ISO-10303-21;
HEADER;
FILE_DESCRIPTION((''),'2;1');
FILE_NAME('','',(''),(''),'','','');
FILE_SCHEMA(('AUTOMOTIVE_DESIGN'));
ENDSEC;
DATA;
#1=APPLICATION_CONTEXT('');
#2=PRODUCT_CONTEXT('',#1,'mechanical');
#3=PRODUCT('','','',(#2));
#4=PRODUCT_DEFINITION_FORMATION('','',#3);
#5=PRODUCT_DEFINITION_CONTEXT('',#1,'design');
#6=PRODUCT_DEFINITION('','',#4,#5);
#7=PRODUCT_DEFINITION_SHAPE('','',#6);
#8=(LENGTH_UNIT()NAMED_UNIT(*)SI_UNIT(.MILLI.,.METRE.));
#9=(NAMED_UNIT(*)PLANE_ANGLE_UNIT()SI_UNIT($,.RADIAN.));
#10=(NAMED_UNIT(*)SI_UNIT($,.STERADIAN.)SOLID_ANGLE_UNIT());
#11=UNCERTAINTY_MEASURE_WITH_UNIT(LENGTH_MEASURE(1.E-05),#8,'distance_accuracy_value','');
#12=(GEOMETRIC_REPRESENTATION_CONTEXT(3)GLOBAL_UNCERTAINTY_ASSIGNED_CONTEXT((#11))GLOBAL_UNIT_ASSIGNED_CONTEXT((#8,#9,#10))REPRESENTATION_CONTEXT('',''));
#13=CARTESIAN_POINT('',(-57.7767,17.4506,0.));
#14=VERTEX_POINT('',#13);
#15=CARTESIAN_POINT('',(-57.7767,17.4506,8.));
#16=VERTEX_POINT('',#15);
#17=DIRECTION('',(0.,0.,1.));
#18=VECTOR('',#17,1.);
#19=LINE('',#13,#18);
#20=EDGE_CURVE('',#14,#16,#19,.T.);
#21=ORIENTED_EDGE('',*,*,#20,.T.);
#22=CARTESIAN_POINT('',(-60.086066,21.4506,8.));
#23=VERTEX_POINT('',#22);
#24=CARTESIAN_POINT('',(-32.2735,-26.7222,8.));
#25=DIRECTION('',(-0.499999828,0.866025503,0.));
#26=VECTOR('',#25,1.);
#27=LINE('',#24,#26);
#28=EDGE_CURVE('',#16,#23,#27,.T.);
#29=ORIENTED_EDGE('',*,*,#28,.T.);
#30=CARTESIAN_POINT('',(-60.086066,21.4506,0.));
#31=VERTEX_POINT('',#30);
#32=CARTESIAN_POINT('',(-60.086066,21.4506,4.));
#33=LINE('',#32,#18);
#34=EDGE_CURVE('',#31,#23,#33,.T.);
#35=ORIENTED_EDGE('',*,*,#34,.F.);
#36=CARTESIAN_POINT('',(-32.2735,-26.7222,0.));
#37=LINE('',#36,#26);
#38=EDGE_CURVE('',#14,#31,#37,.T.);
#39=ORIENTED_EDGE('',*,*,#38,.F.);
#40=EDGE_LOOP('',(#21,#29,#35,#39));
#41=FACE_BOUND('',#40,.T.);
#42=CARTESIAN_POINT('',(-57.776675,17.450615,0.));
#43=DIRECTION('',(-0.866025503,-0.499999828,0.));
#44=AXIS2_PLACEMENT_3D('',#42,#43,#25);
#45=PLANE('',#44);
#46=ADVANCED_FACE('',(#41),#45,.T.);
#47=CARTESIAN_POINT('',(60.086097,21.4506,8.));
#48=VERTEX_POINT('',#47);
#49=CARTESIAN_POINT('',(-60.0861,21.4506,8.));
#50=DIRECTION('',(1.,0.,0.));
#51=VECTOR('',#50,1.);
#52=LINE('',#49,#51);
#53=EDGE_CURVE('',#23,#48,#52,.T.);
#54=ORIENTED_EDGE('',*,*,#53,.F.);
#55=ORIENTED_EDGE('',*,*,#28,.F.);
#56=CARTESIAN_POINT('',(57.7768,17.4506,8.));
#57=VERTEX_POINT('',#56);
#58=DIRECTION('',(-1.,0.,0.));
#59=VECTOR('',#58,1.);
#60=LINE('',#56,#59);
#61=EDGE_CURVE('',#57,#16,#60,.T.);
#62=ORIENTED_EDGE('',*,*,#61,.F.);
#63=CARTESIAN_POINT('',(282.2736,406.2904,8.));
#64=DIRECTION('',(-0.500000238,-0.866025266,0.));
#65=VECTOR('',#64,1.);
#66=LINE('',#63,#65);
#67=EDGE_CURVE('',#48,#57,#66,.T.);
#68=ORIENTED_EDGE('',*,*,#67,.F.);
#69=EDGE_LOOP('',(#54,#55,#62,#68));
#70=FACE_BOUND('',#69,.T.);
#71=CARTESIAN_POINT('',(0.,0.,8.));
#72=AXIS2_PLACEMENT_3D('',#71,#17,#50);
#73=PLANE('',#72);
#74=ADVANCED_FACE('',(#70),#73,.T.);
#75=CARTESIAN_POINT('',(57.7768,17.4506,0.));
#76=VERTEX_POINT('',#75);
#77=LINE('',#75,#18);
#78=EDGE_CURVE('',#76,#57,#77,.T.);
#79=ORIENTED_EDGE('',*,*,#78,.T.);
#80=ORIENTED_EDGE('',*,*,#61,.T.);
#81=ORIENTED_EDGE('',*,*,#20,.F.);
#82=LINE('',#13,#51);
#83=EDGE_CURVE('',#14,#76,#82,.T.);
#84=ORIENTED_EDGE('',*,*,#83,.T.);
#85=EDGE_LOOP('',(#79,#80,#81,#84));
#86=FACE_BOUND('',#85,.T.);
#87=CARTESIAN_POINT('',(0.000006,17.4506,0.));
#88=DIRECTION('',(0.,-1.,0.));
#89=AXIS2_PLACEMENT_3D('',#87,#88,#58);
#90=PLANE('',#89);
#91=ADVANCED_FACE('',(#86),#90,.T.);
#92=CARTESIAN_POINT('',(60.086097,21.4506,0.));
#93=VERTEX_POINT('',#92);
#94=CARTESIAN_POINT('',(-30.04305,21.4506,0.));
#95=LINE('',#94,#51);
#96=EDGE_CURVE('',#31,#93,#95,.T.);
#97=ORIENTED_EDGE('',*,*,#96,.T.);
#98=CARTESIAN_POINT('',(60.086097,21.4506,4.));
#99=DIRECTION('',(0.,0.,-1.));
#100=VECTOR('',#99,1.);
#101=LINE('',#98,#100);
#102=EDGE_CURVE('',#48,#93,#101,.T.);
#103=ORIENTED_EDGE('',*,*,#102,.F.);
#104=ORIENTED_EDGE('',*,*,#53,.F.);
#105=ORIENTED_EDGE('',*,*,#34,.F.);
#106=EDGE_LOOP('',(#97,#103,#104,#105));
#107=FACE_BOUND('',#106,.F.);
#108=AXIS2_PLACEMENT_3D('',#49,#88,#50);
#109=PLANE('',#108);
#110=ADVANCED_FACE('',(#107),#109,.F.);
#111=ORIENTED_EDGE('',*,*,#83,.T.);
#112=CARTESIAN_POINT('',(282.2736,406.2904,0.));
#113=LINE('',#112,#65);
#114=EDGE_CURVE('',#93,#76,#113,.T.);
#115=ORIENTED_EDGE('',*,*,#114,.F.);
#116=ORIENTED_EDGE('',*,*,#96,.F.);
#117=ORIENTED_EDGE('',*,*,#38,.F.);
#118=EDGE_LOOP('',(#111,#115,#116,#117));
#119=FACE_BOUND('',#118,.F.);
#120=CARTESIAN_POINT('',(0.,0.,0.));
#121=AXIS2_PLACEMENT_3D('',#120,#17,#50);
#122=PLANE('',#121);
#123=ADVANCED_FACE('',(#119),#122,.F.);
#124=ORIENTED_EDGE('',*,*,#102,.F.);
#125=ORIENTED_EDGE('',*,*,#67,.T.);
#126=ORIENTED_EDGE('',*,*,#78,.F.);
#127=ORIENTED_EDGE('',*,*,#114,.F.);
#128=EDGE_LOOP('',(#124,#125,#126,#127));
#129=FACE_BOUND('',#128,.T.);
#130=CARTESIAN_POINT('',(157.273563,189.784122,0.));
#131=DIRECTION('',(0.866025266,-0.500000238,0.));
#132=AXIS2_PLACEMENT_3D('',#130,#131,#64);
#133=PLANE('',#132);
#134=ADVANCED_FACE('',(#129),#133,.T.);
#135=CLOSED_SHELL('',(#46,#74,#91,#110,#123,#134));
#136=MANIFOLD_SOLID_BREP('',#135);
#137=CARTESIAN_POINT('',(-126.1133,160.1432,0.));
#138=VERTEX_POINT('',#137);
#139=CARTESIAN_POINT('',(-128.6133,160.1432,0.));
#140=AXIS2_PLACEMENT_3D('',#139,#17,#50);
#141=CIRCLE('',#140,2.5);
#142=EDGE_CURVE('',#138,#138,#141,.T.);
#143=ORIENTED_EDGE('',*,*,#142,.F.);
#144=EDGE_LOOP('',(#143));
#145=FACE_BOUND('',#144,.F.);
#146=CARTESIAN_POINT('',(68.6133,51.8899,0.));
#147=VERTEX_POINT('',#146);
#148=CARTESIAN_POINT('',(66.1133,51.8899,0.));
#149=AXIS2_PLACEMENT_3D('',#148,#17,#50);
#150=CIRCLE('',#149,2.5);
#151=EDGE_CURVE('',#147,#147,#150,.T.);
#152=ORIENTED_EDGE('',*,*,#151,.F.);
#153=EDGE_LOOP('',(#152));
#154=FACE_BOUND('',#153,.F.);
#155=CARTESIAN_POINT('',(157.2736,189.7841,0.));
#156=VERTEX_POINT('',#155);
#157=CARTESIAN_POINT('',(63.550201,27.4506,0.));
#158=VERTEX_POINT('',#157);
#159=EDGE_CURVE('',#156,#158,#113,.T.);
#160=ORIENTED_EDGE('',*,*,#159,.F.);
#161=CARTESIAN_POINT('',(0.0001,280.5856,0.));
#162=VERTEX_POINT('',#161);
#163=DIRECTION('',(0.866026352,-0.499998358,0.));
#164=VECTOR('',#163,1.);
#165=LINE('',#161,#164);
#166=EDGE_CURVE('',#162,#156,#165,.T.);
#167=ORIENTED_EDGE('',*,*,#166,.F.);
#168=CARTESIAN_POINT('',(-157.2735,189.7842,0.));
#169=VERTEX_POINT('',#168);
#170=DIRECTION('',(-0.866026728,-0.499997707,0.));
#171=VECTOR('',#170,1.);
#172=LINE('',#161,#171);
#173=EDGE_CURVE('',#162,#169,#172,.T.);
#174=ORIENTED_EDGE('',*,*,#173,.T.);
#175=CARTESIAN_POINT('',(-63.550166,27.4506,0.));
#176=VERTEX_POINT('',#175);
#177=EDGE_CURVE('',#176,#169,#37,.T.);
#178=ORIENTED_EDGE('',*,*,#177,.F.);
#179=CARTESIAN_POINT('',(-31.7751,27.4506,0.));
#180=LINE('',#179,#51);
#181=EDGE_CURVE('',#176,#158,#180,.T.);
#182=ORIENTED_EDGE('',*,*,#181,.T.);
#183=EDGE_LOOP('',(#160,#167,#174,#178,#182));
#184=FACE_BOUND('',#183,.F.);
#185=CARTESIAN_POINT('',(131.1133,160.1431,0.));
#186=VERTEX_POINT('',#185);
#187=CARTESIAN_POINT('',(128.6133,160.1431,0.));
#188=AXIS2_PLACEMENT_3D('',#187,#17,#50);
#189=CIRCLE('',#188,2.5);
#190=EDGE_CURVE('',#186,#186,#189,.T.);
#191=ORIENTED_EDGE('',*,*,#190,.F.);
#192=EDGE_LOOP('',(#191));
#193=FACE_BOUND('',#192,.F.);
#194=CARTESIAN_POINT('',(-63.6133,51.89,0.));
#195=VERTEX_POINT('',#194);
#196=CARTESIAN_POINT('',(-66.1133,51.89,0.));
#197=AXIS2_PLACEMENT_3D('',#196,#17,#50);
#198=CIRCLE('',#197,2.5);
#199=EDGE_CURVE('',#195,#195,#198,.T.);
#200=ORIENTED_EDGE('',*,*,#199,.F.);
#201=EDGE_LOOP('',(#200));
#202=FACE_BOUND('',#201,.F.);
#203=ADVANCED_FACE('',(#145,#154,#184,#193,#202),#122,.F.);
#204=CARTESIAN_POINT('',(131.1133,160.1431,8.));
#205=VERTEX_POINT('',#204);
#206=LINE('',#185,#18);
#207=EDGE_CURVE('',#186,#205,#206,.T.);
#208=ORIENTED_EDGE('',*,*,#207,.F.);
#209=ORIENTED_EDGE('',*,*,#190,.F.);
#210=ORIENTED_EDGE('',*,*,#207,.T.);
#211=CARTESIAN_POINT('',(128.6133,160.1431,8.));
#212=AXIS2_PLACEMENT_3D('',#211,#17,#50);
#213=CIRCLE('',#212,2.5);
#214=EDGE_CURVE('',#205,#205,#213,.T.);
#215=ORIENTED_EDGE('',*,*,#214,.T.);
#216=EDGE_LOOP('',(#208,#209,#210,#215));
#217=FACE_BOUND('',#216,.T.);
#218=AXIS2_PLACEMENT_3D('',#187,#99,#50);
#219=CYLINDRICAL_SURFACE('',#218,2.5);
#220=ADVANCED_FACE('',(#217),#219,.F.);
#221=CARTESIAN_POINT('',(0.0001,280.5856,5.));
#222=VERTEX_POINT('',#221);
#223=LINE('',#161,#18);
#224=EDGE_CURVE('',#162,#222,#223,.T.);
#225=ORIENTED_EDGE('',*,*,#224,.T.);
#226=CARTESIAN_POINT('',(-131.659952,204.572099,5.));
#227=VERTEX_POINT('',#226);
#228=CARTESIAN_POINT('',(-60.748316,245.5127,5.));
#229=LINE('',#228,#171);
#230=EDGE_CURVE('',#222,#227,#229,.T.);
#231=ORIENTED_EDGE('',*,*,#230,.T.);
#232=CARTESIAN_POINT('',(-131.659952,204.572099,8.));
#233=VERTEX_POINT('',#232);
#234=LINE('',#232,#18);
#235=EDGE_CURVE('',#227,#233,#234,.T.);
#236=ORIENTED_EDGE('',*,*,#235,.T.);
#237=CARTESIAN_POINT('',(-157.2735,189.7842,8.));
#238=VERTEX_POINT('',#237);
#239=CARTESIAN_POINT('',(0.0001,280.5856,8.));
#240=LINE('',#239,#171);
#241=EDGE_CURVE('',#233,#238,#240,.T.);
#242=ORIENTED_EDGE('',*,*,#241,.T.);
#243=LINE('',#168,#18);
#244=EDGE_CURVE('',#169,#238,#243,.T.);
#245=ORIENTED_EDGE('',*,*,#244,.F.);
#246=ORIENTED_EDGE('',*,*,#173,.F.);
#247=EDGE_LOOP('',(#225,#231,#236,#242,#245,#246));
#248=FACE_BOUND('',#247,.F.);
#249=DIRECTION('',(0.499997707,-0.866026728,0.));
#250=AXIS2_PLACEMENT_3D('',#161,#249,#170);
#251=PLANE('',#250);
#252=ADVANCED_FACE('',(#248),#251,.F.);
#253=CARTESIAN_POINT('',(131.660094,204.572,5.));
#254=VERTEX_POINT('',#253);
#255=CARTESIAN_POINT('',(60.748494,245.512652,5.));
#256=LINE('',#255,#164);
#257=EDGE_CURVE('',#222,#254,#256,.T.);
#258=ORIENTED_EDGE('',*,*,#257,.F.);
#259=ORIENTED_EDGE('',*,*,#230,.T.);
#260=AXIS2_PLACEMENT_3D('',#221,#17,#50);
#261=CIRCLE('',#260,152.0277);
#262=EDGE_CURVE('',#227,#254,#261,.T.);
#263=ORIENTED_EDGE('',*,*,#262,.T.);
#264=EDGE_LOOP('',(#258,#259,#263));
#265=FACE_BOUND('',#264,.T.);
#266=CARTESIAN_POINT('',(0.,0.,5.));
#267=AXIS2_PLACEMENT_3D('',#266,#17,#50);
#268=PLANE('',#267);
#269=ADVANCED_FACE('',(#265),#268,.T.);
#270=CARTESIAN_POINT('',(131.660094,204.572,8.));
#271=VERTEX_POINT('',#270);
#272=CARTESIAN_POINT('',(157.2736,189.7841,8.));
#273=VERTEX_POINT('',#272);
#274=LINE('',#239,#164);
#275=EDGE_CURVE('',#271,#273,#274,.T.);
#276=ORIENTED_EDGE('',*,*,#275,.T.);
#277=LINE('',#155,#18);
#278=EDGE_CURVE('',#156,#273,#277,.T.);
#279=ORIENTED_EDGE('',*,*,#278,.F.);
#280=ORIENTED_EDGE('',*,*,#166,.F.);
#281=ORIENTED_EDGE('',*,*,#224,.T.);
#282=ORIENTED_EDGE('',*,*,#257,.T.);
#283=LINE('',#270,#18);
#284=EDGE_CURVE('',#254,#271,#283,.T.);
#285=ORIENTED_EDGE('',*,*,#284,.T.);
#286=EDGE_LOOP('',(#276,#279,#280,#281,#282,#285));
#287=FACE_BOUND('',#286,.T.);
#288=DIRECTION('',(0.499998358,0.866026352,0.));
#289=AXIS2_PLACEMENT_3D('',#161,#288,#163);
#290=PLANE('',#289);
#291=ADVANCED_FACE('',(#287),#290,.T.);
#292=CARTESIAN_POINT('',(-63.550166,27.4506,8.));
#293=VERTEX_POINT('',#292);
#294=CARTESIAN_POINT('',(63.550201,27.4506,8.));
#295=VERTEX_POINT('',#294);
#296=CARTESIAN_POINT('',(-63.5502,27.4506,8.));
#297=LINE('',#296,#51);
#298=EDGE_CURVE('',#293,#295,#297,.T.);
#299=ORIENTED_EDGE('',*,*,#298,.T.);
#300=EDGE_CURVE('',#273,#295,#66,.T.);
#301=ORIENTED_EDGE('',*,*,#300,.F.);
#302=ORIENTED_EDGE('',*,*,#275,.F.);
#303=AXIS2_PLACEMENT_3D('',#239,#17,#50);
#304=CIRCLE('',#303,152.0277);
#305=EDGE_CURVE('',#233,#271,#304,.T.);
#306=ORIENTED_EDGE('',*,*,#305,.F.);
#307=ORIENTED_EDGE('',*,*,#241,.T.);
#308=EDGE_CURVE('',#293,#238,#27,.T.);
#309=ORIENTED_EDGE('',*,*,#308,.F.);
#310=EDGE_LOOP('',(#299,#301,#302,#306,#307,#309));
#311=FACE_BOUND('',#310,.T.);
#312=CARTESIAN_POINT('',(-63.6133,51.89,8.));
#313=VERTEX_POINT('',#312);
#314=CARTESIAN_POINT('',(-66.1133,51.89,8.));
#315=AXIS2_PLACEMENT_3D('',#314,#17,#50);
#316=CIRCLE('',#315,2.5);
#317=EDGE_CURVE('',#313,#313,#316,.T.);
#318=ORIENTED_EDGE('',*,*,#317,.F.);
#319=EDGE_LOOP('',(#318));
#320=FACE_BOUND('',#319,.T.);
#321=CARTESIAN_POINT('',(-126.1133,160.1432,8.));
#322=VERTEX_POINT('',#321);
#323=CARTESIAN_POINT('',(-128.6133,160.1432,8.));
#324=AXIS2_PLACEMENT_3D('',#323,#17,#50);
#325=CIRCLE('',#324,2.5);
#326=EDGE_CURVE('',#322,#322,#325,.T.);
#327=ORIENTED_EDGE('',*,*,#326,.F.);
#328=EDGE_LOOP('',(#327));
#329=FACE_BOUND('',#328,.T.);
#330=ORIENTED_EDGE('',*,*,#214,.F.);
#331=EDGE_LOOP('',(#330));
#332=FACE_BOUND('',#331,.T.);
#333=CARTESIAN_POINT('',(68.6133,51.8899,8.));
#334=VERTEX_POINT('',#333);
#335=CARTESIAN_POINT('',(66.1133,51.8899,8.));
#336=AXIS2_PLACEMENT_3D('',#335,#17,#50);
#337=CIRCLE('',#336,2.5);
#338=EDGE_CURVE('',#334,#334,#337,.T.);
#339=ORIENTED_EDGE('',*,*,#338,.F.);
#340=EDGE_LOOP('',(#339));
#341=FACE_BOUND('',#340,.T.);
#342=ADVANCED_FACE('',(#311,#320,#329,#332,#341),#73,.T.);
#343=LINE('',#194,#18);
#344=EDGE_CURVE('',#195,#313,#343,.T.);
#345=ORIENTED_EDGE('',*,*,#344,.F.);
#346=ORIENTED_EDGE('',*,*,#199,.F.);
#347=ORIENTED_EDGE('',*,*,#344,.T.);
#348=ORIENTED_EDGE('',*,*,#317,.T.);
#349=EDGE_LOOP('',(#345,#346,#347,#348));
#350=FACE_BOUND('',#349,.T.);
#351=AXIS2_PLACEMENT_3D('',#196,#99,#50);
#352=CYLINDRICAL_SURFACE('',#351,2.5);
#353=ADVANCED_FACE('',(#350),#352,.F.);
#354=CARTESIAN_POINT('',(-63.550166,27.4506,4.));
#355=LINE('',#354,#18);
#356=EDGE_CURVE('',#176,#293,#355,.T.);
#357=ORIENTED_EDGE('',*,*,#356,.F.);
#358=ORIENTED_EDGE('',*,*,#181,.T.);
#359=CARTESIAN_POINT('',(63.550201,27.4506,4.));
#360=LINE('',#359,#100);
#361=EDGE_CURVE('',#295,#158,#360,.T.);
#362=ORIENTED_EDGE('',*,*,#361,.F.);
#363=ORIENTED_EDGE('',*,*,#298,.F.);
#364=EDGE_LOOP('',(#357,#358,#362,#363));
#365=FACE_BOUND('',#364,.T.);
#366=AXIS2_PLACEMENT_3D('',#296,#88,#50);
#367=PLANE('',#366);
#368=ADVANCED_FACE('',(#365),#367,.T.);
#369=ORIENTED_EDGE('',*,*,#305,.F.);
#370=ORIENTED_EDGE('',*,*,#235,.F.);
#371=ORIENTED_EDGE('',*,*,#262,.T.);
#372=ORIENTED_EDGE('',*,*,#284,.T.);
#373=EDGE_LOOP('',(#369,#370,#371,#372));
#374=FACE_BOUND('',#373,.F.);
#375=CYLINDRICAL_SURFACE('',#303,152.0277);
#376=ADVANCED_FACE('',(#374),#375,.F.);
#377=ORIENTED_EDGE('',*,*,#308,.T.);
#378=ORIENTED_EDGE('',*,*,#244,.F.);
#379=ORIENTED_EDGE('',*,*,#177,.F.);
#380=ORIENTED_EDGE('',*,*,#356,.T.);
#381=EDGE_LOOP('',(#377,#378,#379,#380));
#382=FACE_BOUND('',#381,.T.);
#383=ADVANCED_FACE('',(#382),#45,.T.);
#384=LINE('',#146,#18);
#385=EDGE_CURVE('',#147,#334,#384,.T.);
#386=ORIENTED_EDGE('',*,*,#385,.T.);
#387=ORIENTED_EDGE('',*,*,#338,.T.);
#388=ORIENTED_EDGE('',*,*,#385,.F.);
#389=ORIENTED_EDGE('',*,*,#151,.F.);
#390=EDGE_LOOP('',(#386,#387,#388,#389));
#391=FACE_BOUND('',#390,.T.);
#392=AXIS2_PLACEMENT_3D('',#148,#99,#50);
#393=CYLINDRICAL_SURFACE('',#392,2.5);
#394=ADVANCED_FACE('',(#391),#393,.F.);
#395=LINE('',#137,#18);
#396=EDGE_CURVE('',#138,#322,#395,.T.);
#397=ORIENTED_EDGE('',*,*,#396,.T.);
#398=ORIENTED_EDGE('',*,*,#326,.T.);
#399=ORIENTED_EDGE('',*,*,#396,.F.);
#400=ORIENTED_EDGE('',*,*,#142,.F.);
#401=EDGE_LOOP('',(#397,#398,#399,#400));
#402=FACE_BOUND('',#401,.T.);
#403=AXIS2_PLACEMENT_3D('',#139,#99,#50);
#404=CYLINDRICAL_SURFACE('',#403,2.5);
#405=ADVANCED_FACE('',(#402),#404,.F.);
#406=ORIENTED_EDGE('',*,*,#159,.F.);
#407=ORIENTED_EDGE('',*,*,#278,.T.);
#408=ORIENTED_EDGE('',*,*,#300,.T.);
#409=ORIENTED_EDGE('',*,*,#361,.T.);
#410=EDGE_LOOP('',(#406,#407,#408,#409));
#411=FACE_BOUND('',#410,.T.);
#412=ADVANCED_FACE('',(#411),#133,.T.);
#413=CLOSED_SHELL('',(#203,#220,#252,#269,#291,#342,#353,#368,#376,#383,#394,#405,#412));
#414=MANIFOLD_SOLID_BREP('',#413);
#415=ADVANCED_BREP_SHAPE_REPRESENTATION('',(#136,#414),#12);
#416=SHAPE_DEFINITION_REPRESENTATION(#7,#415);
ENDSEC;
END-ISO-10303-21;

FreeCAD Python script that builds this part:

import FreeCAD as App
import Part
import Sketcher

V = App.Vector
Q = App.Units.Quantity


def add_polygon(sketch, points):
    """Adds a closed chain of lines whose ends are joined by coincident constraints."""
    first, n = sketch.GeometryCount, len(points)
    for a, b in zip(points, points[1:] + points[:1]):
        sketch.addGeometry(Part.LineSegment(App.Vector(*a, 0), App.Vector(*b, 0)), False)
    for i in range(n):
        sketch.addConstraint(Sketcher.Constraint("Coincident", first + i, 2, first + (i + 1) % n, 1))

doc = App.newDocument("Part")
body = doc.addObject("PartDesign::Body", "Body")
body.AllowCompound = True

sketch1 = body.newObject("Sketcher::SketchObject", "Sketch")
sketch1.AttachmentSupport = (doc.getObject("XY_Plane"), [""])
sketch1.MapMode = "FlatFace"
add_polygon(sketch1, [(57.8, 17.5), (157.3, 189.8), (0, 280.6), (-157.3, 189.8), (-57.8, 17.5)])
sketch1.addGeometry(Part.Circle(V(-66.1, 51.9, 0), V(0, 0, 1), 2.5), False)
sketch1.addGeometry(Part.Circle(V(-128.6, 160.1, 0), V(0, 0, 1), 2.5), False)
sketch1.addGeometry(Part.Circle(V(128.6, 160.1, 0), V(0, 0, 1), 2.5), False)
sketch1.addGeometry(Part.Circle(V(66.1, 51.9, 0), V(0, 0, 1), 2.5), False)
sketch1.addConstraint(Sketcher.Constraint("Horizontal", 4))
sketch1.addConstraint(Sketcher.Constraint("Equal", 5, 6))
sketch1.addConstraint(Sketcher.Constraint("Equal", 6, 7))
sketch1.addConstraint(Sketcher.Constraint("Equal", 7, 8))
sketch1.addConstraint(Sketcher.Constraint("Symmetric", 6, 3, 7, 3, -2))
sketch1.addConstraint(Sketcher.Constraint("Symmetric", 5, 3, 8, 3, -2))
sketch1.addConstraint(Sketcher.Constraint("Symmetric", 0, 2, 2, 2, -2))
sketch1.addConstraint(Sketcher.Constraint("PointOnObject", 1, 2, -2))
sketch1.addConstraint(Sketcher.Constraint("Perpendicular", 0, 1))
sketch1.addConstraint(Sketcher.Constraint("Perpendicular", 2, 3))
sketch1.addConstraint(Sketcher.Constraint("Diameter", 5, Q("5 mm")))
sketch1.addConstraint(Sketcher.Constraint("Angle", 0, Q("60 deg")))
sketch1.addConstraint(Sketcher.Constraint("DistanceX", 6, 3, 5, 3, Q("62.5 mm")))
sketch1.addConstraint(Sketcher.Constraint("DistanceY", -1, 1, 5, 3, Q("51.89 mm")))
sketch1.addConstraint(Sketcher.Constraint("DistanceX", 3, 2, 8, 3, Q("123.89 mm")))
sketch1.addConstraint(Sketcher.Constraint("DistanceX", 4, 1, 4, 2, Q("115.5535 mm")))
sketch1.addConstraint(Sketcher.Constraint("DistanceY", -1, 1, 7, 3, Q("160.143 mm")))
sketch1.addConstraint(Sketcher.Constraint("DistanceY", 7, 3, 0, 2, Q("29.641 mm")))
sketch1.addConstraint(Sketcher.Constraint("Distance", 0, Q("198.9936 mm")))
pad1 = body.newObject("PartDesign::Pad", "Pad")
pad1.Profile = sketch1
pad1.Length = 8

sketch2 = body.newObject("Sketcher::SketchObject", "Sketch001")
sketch2.AttachmentSupport = (doc.getObject("XY_Plane"), [""])
sketch2.MapMode = "FlatFace"
sketch2.AttachmentOffset = App.Placement(V(0, 0, 8), App.Rotation())
sketch2.addGeometry(Part.Circle(V(0, 281, 0), V(0, 0, 1), 152), False)
sketch2.addConstraint(Sketcher.Constraint("PointOnObject", 0, 3, -2))
sketch2.addConstraint(Sketcher.Constraint("Diameter", 0, Q("304.0554 mm")))
sketch2.addConstraint(Sketcher.Constraint("DistanceY", -1, 1, 0, 3, Q("280.5856 mm")))
pocket1 = body.newObject("PartDesign::Pocket", "Pocket")
pocket1.Profile = sketch2
pocket1.Length = 3

sketch3 = body.newObject("Sketcher::SketchObject", "Sketch002")
sketch3.AttachmentSupport = (doc.getObject("XY_Plane"), [""])
sketch3.MapMode = "FlatFace"
sketch3.AttachmentOffset = App.Placement(V(0, 0, 8), App.Rotation())
add_polygon(sketch3, [(64, 27), (-64, 27), (-60, 21), (60, 21)])
sketch3.addConstraint(Sketcher.Constraint("Horizontal", 0))
sketch3.addConstraint(Sketcher.Constraint("Horizontal", 2))
sketch3.addConstraint(Sketcher.Constraint("Equal", 1, 3))
sketch3.addConstraint(Sketcher.Constraint("Angle", 1, Q("-60 deg")))
sketch3.addConstraint(Sketcher.Constraint("DistanceY", 1, 2, 0, 2, Q("6 mm")))
sketch3.addConstraint(Sketcher.Constraint("DistanceX", 0, 2, 0, 1, Q("127.1005 mm")))
sketch3.addConstraint(Sketcher.Constraint("DistanceX", 1, 2, -1, 1, Q("60.086 mm")))
sketch3.addConstraint(Sketcher.Constraint("DistanceY", -1, 1, 0, 2, Q("27.4506 mm")))
pocket2 = body.newObject("PartDesign::Pocket", "Pocket001")
pocket2.Profile = sketch3
pocket2.Type = "ThroughAll"

doc.recompute()
